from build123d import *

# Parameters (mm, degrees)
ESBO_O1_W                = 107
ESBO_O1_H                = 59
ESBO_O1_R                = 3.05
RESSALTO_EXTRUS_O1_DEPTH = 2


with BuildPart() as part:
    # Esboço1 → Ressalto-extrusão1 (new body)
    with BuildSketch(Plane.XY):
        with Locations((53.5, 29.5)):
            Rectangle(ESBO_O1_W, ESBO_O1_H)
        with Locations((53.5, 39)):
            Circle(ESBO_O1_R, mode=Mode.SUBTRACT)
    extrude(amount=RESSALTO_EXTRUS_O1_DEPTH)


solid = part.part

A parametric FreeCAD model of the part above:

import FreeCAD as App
import Part
import Sketcher
Q = App.Units.Quantity


def add_polygon(sketch, points):
    """Adds a closed chain of lines whose ends are joined by coincident constraints."""
    first, n = sketch.GeometryCount, len(points)
    for a, b in zip(points, points[1:] + points[:1]):
        sketch.addGeometry(Part.LineSegment(App.Vector(*a, 0), App.Vector(*b, 0)), False)
    for i in range(n):
        sketch.addConstraint(Sketcher.Constraint("Coincident", first + i, 2, first + (i + 1) % n, 1))

doc = App.newDocument("Part")
body = doc.addObject("PartDesign::Body", "Body")

# Sketch on XY plane
sketch1 = body.newObject("Sketcher::SketchObject", "Sketch")
sketch1.AttachmentSupport = (doc.getObject("XY_Plane"), [""])
sketch1.MapMode = "FlatFace"
add_polygon(sketch1, [(0, 59), (0, 0), (107, 0), (107, 59)])  # lines 0-3
sketch1.addGeometry(Part.Circle(App.Vector(53.5, 39, 0), App.Vector(0, 0, 1), 3.05), False)  # 4
sketch1.addConstraint([
    Sketcher.Constraint("Vertical", 0),
    Sketcher.Constraint("Horizontal", 1),
    Sketcher.Constraint("Vertical", 2),
    Sketcher.Constraint("Horizontal", 3),
    Sketcher.Constraint("Coincident", 0, 2, -1, 1),
    Sketcher.Constraint("Diameter", 4, Q("6.1 mm")),
    Sketcher.Constraint("DistanceX", 1, 1, 1, 2, Q("107 mm")),
    Sketcher.Constraint("DistanceY", 0, 2, 0, 1, Q("59 mm")),
    Sketcher.Constraint("DistanceY", -1, 1, 4, 3, Q("39 mm")),
    Sketcher.Constraint("DistanceX", -1, 1, 4, 3, Q("53.5 mm")),
])
pad1 = body.newObject("PartDesign::Pad", "Pad")
pad1.Profile = sketch1
pad1.Length = 2

doc.recompute()
